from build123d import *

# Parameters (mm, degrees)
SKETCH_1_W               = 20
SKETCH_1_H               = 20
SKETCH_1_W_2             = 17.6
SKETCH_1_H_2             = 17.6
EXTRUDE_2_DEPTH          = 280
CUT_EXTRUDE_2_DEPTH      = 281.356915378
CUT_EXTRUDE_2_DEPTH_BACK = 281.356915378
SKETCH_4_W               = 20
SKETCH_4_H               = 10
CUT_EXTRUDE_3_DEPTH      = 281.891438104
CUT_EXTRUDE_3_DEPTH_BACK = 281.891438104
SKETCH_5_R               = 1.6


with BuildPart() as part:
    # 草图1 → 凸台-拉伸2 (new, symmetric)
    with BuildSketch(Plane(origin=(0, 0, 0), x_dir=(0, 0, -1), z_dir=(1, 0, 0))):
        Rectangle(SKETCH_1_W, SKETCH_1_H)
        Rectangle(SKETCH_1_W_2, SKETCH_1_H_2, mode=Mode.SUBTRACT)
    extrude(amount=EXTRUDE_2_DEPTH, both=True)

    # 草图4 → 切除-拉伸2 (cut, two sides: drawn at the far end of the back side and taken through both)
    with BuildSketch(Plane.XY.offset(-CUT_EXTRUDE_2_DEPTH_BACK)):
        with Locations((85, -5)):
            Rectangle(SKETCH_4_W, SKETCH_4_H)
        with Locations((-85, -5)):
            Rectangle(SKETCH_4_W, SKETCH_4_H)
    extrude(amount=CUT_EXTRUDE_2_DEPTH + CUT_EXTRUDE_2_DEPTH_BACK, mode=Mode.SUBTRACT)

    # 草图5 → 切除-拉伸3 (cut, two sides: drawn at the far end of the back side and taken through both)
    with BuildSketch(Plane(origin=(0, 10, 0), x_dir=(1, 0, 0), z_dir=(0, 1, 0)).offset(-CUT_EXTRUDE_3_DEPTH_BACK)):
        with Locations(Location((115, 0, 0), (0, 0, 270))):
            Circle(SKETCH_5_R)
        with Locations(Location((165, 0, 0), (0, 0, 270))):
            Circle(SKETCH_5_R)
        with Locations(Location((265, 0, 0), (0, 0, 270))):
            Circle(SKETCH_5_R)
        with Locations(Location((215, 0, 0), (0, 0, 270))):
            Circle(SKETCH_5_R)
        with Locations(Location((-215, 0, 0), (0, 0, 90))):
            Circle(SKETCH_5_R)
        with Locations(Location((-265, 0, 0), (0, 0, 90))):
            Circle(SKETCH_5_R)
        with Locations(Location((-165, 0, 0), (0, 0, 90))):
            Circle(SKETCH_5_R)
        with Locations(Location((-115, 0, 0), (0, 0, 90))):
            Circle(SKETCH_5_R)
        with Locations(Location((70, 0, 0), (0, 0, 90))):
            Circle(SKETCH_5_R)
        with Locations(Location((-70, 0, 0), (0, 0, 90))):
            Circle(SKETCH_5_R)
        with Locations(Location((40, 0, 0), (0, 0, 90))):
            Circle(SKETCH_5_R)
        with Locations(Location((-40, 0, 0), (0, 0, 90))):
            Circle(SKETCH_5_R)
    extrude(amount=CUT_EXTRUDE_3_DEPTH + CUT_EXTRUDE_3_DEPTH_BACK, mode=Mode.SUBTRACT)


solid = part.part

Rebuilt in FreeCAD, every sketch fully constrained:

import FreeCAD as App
import Part
import Sketcher

V = App.Vector


def add_polygon(sketch, points):
    """Adds a closed chain of lines whose ends are joined by coincident constraints."""
    first, n = sketch.GeometryCount, len(points)
    for a, b in zip(points, points[1:] + points[:1]):
        sketch.addGeometry(Part.LineSegment(App.Vector(*a, 0), App.Vector(*b, 0)), False)
    for i in range(n):
        sketch.addConstraint(Sketcher.Constraint("Coincident", first + i, 2, first + (i + 1) % n, 1))

doc = App.newDocument("Part")
body = doc.addObject("PartDesign::Body", "Body")

# Sketch on YZ plane
sketch1 = body.newObject("Sketcher::SketchObject", "Sketch")
sketch1.AttachmentSupport = (doc.getObject("YZ_Plane"), [""])
sketch1.MapMode = "FlatFace"
add_polygon(sketch1, [(10, 10), (-10, 10), (-10, -10), (10, -10)])  # lines 0-3
add_polygon(sketch1, [(-9, -9), (-9, 9), (9, 9), (9, -9)])  # lines 4-7
sketch1.addConstraint([
    Sketcher.Constraint("Horizontal", 0),
    Sketcher.Constraint("Vertical", 1),
    Sketcher.Constraint("Horizontal", 2),
    Sketcher.Constraint("Vertical", 3),
    Sketcher.Constraint("Vertical", 4),
    Sketcher.Constraint("Horizontal", 5),
    Sketcher.Constraint("Vertical", 6),
    Sketcher.Constraint("Horizontal", 7),
    Sketcher.Constraint("Symmetric", 0, 2, 2, 2, -1, 1),
    Sketcher.Constraint("Symmetric", 4, 2, 6, 2, -1, 1),
    Sketcher.Constraint("Equal", 2, 1),
    Sketcher.Constraint("Equal", 7, 4),
    Sketcher.Constraint("DistanceX", 0, 2, 0, 1, 20.0),
    Sketcher.Constraint("DistanceX", 5, 1, 5, 2, 17.6),
])
pad1 = body.newObject("PartDesign::Pad", "Pad")
pad1.Profile = sketch1
pad1.Length = 560
pad1.Midplane = True

# Sketch on XY plane
sketch2 = body.newObject("Sketcher::SketchObject", "Sketch001")
sketch2.AttachmentSupport = (doc.getObject("XY_Plane"), [""])
sketch2.MapMode = "FlatFace"
add_polygon(sketch2, [(75, 0), (75, -10), (95, -10), (95, 0)])  # lines 0-3
add_polygon(sketch2, [(-95, 0), (-95, -10), (-75, -10), (-75, 0)])  # lines 4-7
sketch2.addConstraint([
    Sketcher.Constraint("Vertical", 0),
    Sketcher.Constraint("Horizontal", 1),
    Sketcher.Constraint("Vertical", 2),
    Sketcher.Constraint("Horizontal", 3),
    Sketcher.Constraint("Vertical", 4),
    Sketcher.Constraint("Horizontal", 5),
    Sketcher.Constraint("Vertical", 6),
    Sketcher.Constraint("Horizontal", 7),
    Sketcher.Constraint("Symmetric", 3, 2, 6, 2, -1, 1),
    Sketcher.Constraint("Symmetric", 1, 2, 4, 2, -2),
    Sketcher.Constraint("PointOnObject", 2, 2, -1),
    Sketcher.Constraint("DistanceX", 1, 1, 1, 2, 20.0),
    Sketcher.Constraint("DistanceY", 0, 2, 0, 1, 10.0),
    Sketcher.Constraint("DistanceX", -1, 1, 0, 2, 75.0),
])
pocket1 = body.newObject("PartDesign::Pocket", "Pocket")
pocket1.Profile = sketch2
pocket1.Type = "ThroughAll"
pocket1.Midplane = True

# Sketch on XZ plane
sketch3 = body.newObject("Sketcher::SketchObject", "Sketch002")
sketch3.AttachmentSupport = (doc.getObject("XZ_Plane"), [""])
sketch3.MapMode = "FlatFace"
sketch3.AttachmentOffset = App.Placement(V(0, 0, -10), App.Rotation())
sketch3.addGeometry([
    Part.Circle(V(115, 0, 0), V(0, 0, 1), 1.6),  # 0
    Part.Circle(V(165, 0, 0), V(0, 0, 1), 1.6),  # 1
    Part.Circle(V(265, 0, 0), V(0, 0, 1), 1.6),  # 2
    Part.Circle(V(215, 0, 0), V(0, 0, 1), 1.6),  # 3
    Part.Circle(V(-215, 0, 0), V(0, 0, 1), 1.6),  # 4
    Part.Circle(V(-265, 0, 0), V(0, 0, 1), 1.6),  # 5
    Part.Circle(V(-165, 0, 0), V(0, 0, 1), 1.6),  # 6
    Part.Circle(V(-115, 0, 0), V(0, 0, 1), 1.6),  # 7
    Part.Circle(V(70, 0, 0), V(0, 0, 1), 1.6),  # 8
    Part.Circle(V(-70, 0, 0), V(0, 0, 1), 1.6),  # 9
    Part.Circle(V(40, 0, 0), V(0, 0, 1), 1.6),  # 10
    Part.Circle(V(-40, 0, 0), V(0, 0, 1), 1.6),  # 11
], False)
sketch3.addConstraint([
    Sketcher.Constraint("Equal", 0, 1),
    Sketcher.Constraint("Equal", 1, 2),
    Sketcher.Constraint("Equal", 2, 3),
    Sketcher.Constraint("Equal", 3, 4),
    Sketcher.Constraint("Equal", 4, 5),
    Sketcher.Constraint("Equal", 5, 6),
    Sketcher.Constraint("Equal", 6, 7),
    Sketcher.Constraint("Equal", 7, 8),
    Sketcher.Constraint("Equal", 8, 9),
    Sketcher.Constraint("Equal", 9, 10),
    Sketcher.Constraint("Equal", 10, 11),
    Sketcher.Constraint("Symmetric", 3, 3, 4, 3, -1, 1),
    Sketcher.Constraint("Symmetric", 2, 3, 5, 3, -1, 1),
    Sketcher.Constraint("Symmetric", 1, 3, 6, 3, -1, 1),
    Sketcher.Constraint("Symmetric", 0, 3, 7, 3, -1, 1),
    Sketcher.Constraint("Symmetric", 8, 3, 9, 3, -1, 1),
    Sketcher.Constraint("Symmetric", 10, 3, 11, 3, -1, 1),
    Sketcher.Constraint("PointOnObject", 0, 3, -1),
    Sketcher.Constraint("PointOnObject", 1, 3, -1),
    Sketcher.Constraint("PointOnObject", 2, 3, -1),
    Sketcher.Constraint("PointOnObject", 3, 3, -1),
    Sketcher.Constraint("PointOnObject", 8, 3, -1),
    Sketcher.Constraint("PointOnObject", 10, 3, -1),
    Sketcher.Constraint("Diameter", 0, 3.2),
    Sketcher.Constraint("DistanceX", -1, 1, 0, 3, 115.0),
    Sketcher.Constraint("DistanceX", -1, 1, 1, 3, 165.0),
    Sketcher.Constraint("DistanceX", -1, 1, 2, 3, 265.0),
    Sketcher.Constraint("DistanceX", -1, 1, 3, 3, 215.0),
    Sketcher.Constraint("DistanceX", -1, 1, 8, 3, 70.0),
    Sketcher.Constraint("DistanceX", -1, 1, 10, 3, 40.0),
])
pocket2 = body.newObject("PartDesign::Pocket", "Pocket001")
pocket2.Profile = sketch3
pocket2.Type = "ThroughAll"
pocket2.Midplane = True

doc.recompute()
